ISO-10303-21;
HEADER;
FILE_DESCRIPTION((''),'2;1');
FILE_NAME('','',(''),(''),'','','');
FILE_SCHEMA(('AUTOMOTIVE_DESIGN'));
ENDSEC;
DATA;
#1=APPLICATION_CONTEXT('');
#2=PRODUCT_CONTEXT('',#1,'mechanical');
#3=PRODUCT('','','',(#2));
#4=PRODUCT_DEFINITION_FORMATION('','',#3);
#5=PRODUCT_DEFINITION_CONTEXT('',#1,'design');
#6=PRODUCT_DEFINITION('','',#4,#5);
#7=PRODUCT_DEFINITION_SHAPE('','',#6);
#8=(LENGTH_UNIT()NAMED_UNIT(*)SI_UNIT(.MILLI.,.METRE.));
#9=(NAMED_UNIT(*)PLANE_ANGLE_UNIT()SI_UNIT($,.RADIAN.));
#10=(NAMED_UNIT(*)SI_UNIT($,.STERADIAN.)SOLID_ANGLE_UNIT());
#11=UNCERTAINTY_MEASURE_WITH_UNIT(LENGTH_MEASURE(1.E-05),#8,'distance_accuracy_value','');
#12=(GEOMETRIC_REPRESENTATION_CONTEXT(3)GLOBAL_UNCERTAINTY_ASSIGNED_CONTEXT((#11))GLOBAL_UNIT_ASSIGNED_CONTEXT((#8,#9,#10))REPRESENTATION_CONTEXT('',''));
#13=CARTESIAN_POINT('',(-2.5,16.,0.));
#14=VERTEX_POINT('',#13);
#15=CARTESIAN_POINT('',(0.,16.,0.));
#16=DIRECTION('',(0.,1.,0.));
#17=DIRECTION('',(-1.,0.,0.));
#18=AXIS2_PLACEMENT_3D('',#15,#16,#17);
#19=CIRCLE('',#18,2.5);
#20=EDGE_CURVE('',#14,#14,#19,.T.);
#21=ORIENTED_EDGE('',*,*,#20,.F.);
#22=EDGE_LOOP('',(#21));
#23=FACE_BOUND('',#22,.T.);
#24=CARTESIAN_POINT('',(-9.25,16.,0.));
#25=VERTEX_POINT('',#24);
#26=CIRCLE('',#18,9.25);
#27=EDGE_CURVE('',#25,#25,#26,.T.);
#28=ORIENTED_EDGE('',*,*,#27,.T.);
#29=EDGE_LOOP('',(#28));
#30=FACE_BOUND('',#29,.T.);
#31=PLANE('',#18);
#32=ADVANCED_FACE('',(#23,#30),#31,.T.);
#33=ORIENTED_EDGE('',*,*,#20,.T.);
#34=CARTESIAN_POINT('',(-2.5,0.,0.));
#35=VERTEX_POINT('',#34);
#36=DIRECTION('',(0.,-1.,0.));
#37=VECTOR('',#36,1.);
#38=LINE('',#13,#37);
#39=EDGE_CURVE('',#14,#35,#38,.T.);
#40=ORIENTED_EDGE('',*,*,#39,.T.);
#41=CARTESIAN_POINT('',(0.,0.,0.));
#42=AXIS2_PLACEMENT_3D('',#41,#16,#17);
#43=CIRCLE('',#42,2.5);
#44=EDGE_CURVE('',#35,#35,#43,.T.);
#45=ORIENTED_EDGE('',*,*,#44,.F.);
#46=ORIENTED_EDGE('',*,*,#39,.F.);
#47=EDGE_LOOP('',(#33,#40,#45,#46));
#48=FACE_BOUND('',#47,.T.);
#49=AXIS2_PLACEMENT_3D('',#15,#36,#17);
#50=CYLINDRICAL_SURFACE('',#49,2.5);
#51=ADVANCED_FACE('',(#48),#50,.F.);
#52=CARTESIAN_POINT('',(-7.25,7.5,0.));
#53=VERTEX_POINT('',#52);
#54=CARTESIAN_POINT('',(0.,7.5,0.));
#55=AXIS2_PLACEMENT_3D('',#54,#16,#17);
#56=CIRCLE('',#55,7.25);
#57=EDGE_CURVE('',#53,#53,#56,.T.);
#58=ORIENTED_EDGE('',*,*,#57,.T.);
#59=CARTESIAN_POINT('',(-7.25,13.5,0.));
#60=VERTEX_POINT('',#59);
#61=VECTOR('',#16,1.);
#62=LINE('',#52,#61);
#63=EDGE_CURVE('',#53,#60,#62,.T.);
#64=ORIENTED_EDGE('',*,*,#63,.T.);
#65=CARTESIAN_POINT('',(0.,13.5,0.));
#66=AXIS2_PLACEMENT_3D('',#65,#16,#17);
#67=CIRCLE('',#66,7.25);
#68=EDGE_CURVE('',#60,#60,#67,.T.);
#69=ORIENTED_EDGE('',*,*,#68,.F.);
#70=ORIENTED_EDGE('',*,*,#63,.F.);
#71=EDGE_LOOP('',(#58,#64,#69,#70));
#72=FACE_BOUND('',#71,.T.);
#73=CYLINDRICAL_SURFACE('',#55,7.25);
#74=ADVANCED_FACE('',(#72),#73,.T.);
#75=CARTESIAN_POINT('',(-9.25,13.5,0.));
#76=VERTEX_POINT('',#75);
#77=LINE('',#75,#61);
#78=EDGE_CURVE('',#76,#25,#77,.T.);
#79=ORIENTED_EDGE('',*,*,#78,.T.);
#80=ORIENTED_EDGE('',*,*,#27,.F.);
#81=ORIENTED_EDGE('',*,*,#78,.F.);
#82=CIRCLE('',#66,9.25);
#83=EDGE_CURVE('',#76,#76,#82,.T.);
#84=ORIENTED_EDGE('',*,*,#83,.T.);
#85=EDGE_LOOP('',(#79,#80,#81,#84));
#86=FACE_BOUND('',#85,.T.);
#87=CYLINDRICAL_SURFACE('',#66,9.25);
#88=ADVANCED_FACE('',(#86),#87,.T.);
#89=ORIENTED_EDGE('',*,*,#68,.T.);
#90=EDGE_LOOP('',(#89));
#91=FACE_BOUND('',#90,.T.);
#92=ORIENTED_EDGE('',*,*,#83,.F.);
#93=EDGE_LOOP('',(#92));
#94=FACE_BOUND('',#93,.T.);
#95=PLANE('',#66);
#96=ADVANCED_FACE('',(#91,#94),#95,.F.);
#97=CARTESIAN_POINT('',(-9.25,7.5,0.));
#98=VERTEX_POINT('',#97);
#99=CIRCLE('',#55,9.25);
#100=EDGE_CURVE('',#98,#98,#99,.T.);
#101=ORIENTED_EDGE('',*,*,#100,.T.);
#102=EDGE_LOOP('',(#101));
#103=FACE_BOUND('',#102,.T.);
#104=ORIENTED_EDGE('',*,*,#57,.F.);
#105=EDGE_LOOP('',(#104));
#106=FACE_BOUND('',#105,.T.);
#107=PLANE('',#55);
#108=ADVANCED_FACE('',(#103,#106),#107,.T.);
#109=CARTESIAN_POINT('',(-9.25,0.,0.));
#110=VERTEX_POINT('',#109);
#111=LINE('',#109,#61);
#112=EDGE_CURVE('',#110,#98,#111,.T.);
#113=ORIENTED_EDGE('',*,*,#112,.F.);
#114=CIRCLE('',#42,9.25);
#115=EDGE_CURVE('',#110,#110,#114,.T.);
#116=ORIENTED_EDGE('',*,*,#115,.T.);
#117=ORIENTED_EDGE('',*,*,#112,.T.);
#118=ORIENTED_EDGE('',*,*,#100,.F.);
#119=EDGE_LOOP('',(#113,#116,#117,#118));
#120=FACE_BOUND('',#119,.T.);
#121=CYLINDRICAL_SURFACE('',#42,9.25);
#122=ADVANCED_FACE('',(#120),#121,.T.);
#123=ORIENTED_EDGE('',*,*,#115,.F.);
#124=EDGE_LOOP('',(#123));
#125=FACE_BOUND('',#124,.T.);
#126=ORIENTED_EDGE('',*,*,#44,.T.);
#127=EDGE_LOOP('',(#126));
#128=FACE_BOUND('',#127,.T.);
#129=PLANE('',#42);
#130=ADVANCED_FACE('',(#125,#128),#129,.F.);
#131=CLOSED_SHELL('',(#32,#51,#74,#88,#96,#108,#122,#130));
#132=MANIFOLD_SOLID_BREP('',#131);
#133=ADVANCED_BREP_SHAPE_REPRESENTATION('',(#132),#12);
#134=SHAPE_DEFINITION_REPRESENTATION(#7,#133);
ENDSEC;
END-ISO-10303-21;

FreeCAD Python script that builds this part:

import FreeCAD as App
import Part
import Sketcher

doc = App.newDocument("Part")
body = doc.addObject("PartDesign::Body", "Body")

sketch1 = body.newObject("Sketcher::SketchObject", "Sketch")
sketch1.AttachmentSupport = (doc.getObject("XY_Plane"), [""])
sketch1.MapMode = "FlatFace"
sketch1.addGeometry([
    Part.LineSegment(App.Vector(-2.5, 16, 0), App.Vector(-9.2, 16, 0)),
    Part.LineSegment(App.Vector(-9.2, 16, 0), App.Vector(-9.2, 13.5, 0)),
    Part.LineSegment(App.Vector(-9.2, 13.5, 0), App.Vector(-7.2, 13.5, 0)),
    Part.LineSegment(App.Vector(-7.2, 13.5, 0), App.Vector(-7.2, 7.5, 0)),
    Part.LineSegment(App.Vector(-7.2, 7.5, 0), App.Vector(-9.2, 7.5, 0)),
    Part.LineSegment(App.Vector(-9.2, 7.5, 0), App.Vector(-9.2, 0, 0)),
    Part.LineSegment(App.Vector(-9.2, 0, 0), App.Vector(-2.5, 0, 0)),
    Part.LineSegment(App.Vector(-2.5, 0, 0), App.Vector(-2.5, 16, 0)),
], False)
sketch1.addConstraint([
    Sketcher.Constraint("Coincident", 0, 2, 1, 1),
    Sketcher.Constraint("Coincident", 1, 2, 2, 1),
    Sketcher.Constraint("Coincident", 2, 2, 3, 1),
    Sketcher.Constraint("Coincident", 3, 2, 4, 1),
    Sketcher.Constraint("Coincident", 4, 2, 5, 1),
    Sketcher.Constraint("Coincident", 5, 2, 6, 1),
    Sketcher.Constraint("Coincident", 6, 2, 7, 1),
    Sketcher.Constraint("Coincident", 7, 2, 0, 1),
    Sketcher.Constraint("Horizontal", 0),
    Sketcher.Constraint("Vertical", 1),
    Sketcher.Constraint("Horizontal", 2),
    Sketcher.Constraint("Vertical", 3),
    Sketcher.Constraint("Horizontal", 4),
    Sketcher.Constraint("Vertical", 5),
    Sketcher.Constraint("Horizontal", 6),
    Sketcher.Constraint("Vertical", 7),
    Sketcher.Constraint("PointOnObject", 5, 2, -1),
    Sketcher.Constraint("Vertical", 1, 2, 4, 2),
    Sketcher.Constraint("DistanceX", 2, 1, 2, 2, 2.0),
    Sketcher.Constraint("DistanceY", 3, 2, 3, 1, 6.0),
    Sketcher.Constraint("DistanceY", 7, 1, 7, 2, 16.0),
    Sketcher.Constraint("DistanceY", 1, 2, 1, 1, 2.5),
    Sketcher.Constraint("DistanceX", 0, 2, 0, 1, 6.75),
    Sketcher.Constraint("DistanceX", 6, 2, -1, 1, 2.5),
])
revolution = body.newObject("PartDesign::Revolution", "Revolution")
revolution.Profile = sketch1
revolution.ReferenceAxis = (sketch1, ["V_Axis"])
revolution.Angle = 360

doc.recompute()
